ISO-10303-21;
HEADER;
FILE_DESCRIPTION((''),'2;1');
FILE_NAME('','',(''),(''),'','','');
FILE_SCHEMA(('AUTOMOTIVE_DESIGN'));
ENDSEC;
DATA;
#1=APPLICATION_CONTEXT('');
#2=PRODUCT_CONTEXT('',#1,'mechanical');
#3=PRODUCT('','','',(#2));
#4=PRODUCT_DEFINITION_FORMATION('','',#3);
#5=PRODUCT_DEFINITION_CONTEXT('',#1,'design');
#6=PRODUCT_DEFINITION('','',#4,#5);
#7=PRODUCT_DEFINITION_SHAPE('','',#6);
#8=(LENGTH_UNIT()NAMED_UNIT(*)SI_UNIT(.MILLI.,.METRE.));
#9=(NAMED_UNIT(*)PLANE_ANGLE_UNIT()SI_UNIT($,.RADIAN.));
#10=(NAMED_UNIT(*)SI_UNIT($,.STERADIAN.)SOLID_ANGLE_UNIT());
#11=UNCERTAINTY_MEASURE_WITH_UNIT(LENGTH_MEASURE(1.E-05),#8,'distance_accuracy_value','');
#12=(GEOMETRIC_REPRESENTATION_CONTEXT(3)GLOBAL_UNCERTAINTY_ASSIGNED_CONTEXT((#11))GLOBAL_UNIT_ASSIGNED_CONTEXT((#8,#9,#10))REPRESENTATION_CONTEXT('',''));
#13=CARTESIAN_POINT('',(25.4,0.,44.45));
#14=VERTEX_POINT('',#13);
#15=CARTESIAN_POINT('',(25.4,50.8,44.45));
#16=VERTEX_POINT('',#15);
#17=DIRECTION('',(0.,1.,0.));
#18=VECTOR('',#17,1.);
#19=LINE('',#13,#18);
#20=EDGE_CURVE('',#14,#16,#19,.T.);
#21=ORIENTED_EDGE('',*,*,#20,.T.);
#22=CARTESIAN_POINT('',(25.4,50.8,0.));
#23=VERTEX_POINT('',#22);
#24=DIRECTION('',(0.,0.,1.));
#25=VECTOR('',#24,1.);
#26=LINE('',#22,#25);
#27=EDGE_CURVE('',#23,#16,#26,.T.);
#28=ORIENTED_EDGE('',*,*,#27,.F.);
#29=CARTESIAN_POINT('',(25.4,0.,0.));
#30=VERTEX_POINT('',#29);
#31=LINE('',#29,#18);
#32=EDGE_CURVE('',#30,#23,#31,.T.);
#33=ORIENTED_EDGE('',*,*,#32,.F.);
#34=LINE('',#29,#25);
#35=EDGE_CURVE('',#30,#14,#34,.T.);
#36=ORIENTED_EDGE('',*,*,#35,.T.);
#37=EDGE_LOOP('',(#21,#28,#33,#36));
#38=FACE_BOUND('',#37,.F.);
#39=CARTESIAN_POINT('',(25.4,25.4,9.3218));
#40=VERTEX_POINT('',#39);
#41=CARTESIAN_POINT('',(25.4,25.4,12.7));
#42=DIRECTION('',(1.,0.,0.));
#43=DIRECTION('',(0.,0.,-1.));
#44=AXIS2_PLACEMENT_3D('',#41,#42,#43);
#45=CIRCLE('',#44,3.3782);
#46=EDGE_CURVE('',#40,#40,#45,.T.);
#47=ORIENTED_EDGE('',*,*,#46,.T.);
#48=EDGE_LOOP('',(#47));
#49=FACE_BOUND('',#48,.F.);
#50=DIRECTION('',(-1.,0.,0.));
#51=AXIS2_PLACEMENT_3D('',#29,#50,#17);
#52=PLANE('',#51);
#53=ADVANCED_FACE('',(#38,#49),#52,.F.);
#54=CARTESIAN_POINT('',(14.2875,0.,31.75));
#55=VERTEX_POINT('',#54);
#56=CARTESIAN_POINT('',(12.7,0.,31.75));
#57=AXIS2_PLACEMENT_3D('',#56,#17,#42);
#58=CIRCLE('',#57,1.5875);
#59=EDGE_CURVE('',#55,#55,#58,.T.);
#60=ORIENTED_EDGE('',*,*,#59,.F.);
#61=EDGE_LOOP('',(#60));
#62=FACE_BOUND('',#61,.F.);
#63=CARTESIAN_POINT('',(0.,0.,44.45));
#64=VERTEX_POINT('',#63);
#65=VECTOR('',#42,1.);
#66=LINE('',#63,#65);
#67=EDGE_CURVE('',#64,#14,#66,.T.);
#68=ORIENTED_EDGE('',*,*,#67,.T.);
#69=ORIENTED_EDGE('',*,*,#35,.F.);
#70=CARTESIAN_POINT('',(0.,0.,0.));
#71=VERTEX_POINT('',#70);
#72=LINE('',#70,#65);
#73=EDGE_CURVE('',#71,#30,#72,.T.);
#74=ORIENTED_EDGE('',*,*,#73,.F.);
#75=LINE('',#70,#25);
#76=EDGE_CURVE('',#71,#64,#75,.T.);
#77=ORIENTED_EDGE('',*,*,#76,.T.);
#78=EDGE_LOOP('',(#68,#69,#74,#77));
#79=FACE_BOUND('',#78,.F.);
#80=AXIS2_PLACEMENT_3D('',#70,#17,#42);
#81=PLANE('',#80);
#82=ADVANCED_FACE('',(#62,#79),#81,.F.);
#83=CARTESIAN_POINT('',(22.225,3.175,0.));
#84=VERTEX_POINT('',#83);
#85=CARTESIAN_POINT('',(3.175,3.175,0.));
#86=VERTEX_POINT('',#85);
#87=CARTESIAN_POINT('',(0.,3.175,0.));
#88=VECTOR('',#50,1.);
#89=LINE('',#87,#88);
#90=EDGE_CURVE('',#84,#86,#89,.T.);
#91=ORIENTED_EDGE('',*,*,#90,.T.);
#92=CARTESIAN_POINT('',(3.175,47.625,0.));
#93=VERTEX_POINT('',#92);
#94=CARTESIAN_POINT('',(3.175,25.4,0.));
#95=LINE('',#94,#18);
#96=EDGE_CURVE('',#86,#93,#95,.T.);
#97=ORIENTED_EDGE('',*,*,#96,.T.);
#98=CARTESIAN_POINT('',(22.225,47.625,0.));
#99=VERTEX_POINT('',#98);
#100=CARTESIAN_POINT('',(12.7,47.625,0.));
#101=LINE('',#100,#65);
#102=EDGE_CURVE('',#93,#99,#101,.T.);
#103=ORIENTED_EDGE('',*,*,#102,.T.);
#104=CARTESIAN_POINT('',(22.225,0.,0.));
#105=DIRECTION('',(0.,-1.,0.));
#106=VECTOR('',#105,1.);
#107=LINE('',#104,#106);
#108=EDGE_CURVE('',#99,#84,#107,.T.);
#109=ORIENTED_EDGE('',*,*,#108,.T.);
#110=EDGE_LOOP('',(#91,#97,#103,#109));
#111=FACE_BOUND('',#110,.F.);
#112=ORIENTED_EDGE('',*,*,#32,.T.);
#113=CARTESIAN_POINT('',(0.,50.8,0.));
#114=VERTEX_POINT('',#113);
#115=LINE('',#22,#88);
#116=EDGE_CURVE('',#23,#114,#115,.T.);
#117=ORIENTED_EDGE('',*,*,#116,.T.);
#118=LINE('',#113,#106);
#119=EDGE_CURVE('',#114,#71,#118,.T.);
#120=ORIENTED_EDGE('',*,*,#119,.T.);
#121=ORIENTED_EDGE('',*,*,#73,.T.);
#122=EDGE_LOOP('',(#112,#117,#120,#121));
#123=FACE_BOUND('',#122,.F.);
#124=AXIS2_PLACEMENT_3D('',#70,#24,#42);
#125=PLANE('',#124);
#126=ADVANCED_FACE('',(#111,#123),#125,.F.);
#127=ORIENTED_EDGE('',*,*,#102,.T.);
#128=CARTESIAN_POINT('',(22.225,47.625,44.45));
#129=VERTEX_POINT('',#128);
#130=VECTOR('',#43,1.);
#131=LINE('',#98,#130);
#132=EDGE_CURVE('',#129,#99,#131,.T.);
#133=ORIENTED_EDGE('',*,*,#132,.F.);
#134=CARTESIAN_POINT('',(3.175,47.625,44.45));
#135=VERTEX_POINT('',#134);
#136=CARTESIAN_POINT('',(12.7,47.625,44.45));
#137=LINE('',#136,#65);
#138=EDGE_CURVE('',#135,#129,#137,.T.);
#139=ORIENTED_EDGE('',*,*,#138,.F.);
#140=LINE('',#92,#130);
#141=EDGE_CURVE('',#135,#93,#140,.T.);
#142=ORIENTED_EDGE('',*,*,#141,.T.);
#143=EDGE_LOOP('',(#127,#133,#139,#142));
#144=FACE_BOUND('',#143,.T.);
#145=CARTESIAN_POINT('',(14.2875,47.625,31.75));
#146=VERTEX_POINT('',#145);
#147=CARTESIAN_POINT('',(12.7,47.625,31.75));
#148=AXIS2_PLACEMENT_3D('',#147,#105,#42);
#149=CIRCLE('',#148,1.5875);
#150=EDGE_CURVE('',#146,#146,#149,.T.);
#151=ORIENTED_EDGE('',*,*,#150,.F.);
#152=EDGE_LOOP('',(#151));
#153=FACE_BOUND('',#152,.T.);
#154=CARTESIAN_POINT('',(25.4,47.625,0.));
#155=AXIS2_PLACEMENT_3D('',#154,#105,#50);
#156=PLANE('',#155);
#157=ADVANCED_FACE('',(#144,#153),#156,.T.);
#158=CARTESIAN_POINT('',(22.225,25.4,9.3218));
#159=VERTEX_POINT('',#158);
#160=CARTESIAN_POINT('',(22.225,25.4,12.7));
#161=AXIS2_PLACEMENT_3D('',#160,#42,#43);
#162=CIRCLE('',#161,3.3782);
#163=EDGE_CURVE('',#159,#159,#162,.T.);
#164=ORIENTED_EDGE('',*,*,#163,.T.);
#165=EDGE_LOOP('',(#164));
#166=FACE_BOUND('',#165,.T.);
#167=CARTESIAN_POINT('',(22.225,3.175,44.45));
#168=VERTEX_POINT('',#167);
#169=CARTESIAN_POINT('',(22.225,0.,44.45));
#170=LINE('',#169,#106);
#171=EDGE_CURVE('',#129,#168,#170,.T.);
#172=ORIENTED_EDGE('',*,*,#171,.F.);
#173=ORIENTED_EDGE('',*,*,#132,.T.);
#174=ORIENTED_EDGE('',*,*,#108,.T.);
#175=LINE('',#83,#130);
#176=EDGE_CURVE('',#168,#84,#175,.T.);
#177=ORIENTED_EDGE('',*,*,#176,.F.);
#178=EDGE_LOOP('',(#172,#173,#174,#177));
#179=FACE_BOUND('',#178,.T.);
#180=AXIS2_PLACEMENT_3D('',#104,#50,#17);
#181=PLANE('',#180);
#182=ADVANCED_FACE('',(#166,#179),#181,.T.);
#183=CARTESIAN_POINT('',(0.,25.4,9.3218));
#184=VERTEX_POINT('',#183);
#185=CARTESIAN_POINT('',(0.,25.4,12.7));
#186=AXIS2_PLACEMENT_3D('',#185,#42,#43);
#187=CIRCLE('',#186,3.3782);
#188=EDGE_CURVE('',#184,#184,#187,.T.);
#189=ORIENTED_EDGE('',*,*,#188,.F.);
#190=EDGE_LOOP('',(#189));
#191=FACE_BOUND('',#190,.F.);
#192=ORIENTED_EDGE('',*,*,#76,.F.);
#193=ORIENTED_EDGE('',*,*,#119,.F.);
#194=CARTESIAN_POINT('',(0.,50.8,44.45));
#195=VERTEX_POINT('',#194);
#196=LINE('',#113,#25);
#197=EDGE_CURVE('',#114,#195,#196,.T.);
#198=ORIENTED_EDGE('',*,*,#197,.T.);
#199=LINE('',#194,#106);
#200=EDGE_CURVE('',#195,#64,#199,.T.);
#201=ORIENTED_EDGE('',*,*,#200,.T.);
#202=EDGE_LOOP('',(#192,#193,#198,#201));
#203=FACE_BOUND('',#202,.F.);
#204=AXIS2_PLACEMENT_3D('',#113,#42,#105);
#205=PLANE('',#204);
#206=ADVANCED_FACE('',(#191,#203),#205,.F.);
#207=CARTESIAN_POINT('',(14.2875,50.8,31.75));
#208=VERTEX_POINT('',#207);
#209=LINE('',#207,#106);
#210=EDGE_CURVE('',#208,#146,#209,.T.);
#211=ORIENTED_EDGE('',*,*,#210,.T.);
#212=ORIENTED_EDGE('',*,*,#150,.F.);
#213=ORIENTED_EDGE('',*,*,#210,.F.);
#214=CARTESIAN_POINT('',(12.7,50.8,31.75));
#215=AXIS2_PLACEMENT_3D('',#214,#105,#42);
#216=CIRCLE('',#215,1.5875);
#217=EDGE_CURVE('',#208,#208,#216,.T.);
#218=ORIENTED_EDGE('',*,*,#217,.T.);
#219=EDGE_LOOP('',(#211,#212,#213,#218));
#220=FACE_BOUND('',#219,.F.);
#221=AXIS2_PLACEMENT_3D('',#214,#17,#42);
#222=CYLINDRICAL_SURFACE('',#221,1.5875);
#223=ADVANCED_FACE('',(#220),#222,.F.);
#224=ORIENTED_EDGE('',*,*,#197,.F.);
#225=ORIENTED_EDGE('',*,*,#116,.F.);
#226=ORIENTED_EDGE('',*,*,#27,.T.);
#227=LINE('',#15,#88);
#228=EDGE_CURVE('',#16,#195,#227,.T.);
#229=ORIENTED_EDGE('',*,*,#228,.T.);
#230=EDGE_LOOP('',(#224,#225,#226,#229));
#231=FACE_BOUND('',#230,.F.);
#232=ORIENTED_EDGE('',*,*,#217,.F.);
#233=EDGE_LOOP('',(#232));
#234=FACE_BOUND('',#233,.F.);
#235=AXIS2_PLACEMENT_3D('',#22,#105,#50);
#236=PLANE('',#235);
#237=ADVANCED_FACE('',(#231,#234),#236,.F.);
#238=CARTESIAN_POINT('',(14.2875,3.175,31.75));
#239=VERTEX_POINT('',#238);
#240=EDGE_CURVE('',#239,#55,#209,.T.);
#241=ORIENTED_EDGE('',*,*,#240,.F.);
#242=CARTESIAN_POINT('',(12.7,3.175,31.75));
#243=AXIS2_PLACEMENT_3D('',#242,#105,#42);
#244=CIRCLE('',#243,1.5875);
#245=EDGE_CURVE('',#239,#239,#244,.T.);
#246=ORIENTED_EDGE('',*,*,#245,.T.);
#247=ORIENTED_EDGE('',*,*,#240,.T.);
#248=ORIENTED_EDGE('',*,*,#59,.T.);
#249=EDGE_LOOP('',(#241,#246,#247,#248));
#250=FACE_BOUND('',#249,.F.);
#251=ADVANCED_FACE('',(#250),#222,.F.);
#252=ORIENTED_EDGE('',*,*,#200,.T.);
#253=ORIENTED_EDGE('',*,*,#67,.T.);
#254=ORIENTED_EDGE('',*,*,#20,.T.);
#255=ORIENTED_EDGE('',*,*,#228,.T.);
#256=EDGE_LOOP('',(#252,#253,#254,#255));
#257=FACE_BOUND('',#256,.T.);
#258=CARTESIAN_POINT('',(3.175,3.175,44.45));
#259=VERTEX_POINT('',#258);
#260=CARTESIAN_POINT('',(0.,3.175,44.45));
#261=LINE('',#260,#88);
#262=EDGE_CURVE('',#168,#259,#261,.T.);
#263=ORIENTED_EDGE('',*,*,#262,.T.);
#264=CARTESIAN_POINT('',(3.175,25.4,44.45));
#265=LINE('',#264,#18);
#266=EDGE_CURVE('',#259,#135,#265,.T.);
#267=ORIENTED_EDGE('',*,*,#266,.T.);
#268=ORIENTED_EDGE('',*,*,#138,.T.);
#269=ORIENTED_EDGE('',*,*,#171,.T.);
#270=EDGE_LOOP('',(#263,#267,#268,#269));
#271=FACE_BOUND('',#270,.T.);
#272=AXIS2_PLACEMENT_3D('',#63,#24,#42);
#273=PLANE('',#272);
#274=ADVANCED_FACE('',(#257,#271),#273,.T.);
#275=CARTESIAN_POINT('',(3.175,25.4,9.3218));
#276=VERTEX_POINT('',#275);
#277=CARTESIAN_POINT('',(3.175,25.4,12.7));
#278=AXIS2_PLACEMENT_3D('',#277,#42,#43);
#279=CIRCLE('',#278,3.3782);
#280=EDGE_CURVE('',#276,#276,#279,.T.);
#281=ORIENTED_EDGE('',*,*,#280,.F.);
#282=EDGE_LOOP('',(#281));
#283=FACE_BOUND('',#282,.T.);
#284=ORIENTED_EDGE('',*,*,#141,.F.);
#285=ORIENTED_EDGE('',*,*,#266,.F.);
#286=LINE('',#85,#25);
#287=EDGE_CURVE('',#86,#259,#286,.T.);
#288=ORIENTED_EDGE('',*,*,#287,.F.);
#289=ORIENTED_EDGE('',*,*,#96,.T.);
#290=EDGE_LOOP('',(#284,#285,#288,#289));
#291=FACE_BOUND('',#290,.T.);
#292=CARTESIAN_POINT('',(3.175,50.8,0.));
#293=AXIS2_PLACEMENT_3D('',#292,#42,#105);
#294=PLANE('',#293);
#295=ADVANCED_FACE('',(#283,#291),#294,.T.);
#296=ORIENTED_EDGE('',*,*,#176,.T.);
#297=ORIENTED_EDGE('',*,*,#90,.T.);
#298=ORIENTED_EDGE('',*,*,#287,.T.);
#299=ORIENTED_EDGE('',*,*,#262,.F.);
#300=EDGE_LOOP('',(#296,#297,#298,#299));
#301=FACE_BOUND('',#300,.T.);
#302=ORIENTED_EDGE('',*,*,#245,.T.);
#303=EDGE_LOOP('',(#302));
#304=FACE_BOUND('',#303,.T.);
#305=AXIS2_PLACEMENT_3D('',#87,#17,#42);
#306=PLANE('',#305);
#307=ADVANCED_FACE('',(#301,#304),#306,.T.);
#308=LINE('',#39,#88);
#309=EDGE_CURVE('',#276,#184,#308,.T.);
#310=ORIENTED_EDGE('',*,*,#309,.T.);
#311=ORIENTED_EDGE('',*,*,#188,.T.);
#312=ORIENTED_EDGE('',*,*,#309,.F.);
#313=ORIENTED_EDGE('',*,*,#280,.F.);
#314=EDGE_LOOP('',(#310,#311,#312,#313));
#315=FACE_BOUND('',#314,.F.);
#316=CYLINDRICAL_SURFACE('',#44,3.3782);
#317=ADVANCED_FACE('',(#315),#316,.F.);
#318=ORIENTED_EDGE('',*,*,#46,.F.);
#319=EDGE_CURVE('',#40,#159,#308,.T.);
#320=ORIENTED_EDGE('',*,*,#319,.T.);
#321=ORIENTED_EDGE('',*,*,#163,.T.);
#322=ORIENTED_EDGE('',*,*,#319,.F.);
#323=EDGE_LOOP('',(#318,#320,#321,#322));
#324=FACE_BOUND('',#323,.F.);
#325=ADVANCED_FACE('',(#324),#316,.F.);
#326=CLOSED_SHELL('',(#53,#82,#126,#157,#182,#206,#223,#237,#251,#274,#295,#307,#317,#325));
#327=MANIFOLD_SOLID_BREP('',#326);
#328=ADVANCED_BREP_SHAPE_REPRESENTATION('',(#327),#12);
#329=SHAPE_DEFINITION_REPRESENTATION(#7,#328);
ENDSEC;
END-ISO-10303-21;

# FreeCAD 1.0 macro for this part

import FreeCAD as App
import Part
import Sketcher
from FreeCAD import Vector
Q = App.Units.Quantity


def faces_at(feature, points):
    """Names of the faces that lie closest to the given points."""
    faces = feature.Shape.Faces
    near = lambda p: min(range(len(faces)), key=lambda i: faces[i].distToShape(Part.Vertex(*p))[0])
    return sorted({f"Face{near(p) + 1}" for p in points})


def add_polygon(sketch, points):
    """Adds a closed chain of lines whose ends are joined by coincident constraints."""
    first, n = sketch.GeometryCount, len(points)
    for a, b in zip(points, points[1:] + points[:1]):
        sketch.addGeometry(Part.LineSegment(App.Vector(*a, 0), App.Vector(*b, 0)), False)
    for i in range(n):
        sketch.addConstraint(Sketcher.Constraint("Coincident", first + i, 2, first + (i + 1) % n, 1))

doc = App.newDocument("Part")
body = doc.addObject("PartDesign::Body", "Body")

# Sketch on XY plane
sketch1 = doc.addObject("Sketcher::SketchObject", "Sketch")
body.addObject(sketch1)
sketch1.AttachmentSupport = (doc.XY_Plane, [""])
sketch1.MapMode = "FlatFace"
add_polygon(sketch1, [(0, 51), (0, 0), (25, 0), (25, 51)])  # lines 0-3
sketch1.addConstraint([
    Sketcher.Constraint("Vertical", 0),
    Sketcher.Constraint("Horizontal", 1),
    Sketcher.Constraint("Vertical", 2),
    Sketcher.Constraint("Horizontal", 3),
    Sketcher.Constraint("Coincident", 0, 2, -1, 1),
    Sketcher.Constraint("DistanceX", 1, 1, 1, 2, Q("1 in")),
    Sketcher.Constraint("DistanceY", 0, 2, 0, 1, Q("2 in")),
])
pad1 = doc.addObject("PartDesign::Pad", "Pad")
body.addObject(pad1)
pad1.Profile = sketch1
pad1.Length = Q("1.75 in")
doc.recompute()

thickness = doc.addObject("PartDesign::Thickness", "Thickness")
body.addObject(thickness)
thickness.Base = (pad1, faces_at(pad1, [(8.467, 16.933, 0), (8.467, 16.933, 44.45)]))
thickness.Value = Q("0.125 in")
thickness.Reversed = True
thickness.Join = "Intersection"

# Sketch on YZ plane
sketch2 = doc.addObject("Sketcher::SketchObject", "Sketch001")
body.addObject(sketch2)
sketch2.AttachmentSupport = (doc.YZ_Plane, [""])
sketch2.MapMode = "FlatFace"
sketch2.AttachmentOffset = App.Placement(Vector(0, 0, 1 * 25.4), App.Rotation())
sketch2.addGeometry(Part.Circle(Vector(25.4, 12.7, 0), Vector(0, 0, 1), 3.4), False)
sketch2.addConstraint([
    Sketcher.Constraint("Diameter", 0, Q("0.266 in")),
    Sketcher.Constraint("DistanceX", -1, 1, 0, 3, Q("1 in")),
    Sketcher.Constraint("DistanceY", -1, 1, 0, 3, Q("0.5 in")),
])
pocket1 = doc.addObject("PartDesign::Pocket", "Pocket")
body.addObject(pocket1)
pocket1.Profile = sketch2
pocket1.Length = Q("2.5 in")

# Sketch on XZ plane
sketch3 = doc.addObject("Sketcher::SketchObject", "Sketch002")
body.addObject(sketch3)
sketch3.AttachmentSupport = (doc.XZ_Plane, [""])
sketch3.MapMode = "FlatFace"
sketch3.AttachmentOffset = App.Placement(Vector(0, 0, -2 * 25.4), App.Rotation())
sketch3.addGeometry(Part.Circle(Vector(12.7, 31.8, 0), Vector(0, 0, 1), 1.6), False)
sketch3.addConstraint([
    Sketcher.Constraint("Diameter", 0, Q("0.125 in")),
    Sketcher.Constraint("DistanceX", -1, 1, 0, 3, Q("0.5 in")),
    Sketcher.Constraint("DistanceY", -1, 1, 0, 3, Q("1.25 in")),
])
pocket2 = doc.addObject("PartDesign::Pocket", "Pocket001")
body.addObject(pocket2)
pocket2.Profile = sketch3
pocket2.Length = Q("2.5 in")
pocket2.Reversed = True

doc.recompute()
